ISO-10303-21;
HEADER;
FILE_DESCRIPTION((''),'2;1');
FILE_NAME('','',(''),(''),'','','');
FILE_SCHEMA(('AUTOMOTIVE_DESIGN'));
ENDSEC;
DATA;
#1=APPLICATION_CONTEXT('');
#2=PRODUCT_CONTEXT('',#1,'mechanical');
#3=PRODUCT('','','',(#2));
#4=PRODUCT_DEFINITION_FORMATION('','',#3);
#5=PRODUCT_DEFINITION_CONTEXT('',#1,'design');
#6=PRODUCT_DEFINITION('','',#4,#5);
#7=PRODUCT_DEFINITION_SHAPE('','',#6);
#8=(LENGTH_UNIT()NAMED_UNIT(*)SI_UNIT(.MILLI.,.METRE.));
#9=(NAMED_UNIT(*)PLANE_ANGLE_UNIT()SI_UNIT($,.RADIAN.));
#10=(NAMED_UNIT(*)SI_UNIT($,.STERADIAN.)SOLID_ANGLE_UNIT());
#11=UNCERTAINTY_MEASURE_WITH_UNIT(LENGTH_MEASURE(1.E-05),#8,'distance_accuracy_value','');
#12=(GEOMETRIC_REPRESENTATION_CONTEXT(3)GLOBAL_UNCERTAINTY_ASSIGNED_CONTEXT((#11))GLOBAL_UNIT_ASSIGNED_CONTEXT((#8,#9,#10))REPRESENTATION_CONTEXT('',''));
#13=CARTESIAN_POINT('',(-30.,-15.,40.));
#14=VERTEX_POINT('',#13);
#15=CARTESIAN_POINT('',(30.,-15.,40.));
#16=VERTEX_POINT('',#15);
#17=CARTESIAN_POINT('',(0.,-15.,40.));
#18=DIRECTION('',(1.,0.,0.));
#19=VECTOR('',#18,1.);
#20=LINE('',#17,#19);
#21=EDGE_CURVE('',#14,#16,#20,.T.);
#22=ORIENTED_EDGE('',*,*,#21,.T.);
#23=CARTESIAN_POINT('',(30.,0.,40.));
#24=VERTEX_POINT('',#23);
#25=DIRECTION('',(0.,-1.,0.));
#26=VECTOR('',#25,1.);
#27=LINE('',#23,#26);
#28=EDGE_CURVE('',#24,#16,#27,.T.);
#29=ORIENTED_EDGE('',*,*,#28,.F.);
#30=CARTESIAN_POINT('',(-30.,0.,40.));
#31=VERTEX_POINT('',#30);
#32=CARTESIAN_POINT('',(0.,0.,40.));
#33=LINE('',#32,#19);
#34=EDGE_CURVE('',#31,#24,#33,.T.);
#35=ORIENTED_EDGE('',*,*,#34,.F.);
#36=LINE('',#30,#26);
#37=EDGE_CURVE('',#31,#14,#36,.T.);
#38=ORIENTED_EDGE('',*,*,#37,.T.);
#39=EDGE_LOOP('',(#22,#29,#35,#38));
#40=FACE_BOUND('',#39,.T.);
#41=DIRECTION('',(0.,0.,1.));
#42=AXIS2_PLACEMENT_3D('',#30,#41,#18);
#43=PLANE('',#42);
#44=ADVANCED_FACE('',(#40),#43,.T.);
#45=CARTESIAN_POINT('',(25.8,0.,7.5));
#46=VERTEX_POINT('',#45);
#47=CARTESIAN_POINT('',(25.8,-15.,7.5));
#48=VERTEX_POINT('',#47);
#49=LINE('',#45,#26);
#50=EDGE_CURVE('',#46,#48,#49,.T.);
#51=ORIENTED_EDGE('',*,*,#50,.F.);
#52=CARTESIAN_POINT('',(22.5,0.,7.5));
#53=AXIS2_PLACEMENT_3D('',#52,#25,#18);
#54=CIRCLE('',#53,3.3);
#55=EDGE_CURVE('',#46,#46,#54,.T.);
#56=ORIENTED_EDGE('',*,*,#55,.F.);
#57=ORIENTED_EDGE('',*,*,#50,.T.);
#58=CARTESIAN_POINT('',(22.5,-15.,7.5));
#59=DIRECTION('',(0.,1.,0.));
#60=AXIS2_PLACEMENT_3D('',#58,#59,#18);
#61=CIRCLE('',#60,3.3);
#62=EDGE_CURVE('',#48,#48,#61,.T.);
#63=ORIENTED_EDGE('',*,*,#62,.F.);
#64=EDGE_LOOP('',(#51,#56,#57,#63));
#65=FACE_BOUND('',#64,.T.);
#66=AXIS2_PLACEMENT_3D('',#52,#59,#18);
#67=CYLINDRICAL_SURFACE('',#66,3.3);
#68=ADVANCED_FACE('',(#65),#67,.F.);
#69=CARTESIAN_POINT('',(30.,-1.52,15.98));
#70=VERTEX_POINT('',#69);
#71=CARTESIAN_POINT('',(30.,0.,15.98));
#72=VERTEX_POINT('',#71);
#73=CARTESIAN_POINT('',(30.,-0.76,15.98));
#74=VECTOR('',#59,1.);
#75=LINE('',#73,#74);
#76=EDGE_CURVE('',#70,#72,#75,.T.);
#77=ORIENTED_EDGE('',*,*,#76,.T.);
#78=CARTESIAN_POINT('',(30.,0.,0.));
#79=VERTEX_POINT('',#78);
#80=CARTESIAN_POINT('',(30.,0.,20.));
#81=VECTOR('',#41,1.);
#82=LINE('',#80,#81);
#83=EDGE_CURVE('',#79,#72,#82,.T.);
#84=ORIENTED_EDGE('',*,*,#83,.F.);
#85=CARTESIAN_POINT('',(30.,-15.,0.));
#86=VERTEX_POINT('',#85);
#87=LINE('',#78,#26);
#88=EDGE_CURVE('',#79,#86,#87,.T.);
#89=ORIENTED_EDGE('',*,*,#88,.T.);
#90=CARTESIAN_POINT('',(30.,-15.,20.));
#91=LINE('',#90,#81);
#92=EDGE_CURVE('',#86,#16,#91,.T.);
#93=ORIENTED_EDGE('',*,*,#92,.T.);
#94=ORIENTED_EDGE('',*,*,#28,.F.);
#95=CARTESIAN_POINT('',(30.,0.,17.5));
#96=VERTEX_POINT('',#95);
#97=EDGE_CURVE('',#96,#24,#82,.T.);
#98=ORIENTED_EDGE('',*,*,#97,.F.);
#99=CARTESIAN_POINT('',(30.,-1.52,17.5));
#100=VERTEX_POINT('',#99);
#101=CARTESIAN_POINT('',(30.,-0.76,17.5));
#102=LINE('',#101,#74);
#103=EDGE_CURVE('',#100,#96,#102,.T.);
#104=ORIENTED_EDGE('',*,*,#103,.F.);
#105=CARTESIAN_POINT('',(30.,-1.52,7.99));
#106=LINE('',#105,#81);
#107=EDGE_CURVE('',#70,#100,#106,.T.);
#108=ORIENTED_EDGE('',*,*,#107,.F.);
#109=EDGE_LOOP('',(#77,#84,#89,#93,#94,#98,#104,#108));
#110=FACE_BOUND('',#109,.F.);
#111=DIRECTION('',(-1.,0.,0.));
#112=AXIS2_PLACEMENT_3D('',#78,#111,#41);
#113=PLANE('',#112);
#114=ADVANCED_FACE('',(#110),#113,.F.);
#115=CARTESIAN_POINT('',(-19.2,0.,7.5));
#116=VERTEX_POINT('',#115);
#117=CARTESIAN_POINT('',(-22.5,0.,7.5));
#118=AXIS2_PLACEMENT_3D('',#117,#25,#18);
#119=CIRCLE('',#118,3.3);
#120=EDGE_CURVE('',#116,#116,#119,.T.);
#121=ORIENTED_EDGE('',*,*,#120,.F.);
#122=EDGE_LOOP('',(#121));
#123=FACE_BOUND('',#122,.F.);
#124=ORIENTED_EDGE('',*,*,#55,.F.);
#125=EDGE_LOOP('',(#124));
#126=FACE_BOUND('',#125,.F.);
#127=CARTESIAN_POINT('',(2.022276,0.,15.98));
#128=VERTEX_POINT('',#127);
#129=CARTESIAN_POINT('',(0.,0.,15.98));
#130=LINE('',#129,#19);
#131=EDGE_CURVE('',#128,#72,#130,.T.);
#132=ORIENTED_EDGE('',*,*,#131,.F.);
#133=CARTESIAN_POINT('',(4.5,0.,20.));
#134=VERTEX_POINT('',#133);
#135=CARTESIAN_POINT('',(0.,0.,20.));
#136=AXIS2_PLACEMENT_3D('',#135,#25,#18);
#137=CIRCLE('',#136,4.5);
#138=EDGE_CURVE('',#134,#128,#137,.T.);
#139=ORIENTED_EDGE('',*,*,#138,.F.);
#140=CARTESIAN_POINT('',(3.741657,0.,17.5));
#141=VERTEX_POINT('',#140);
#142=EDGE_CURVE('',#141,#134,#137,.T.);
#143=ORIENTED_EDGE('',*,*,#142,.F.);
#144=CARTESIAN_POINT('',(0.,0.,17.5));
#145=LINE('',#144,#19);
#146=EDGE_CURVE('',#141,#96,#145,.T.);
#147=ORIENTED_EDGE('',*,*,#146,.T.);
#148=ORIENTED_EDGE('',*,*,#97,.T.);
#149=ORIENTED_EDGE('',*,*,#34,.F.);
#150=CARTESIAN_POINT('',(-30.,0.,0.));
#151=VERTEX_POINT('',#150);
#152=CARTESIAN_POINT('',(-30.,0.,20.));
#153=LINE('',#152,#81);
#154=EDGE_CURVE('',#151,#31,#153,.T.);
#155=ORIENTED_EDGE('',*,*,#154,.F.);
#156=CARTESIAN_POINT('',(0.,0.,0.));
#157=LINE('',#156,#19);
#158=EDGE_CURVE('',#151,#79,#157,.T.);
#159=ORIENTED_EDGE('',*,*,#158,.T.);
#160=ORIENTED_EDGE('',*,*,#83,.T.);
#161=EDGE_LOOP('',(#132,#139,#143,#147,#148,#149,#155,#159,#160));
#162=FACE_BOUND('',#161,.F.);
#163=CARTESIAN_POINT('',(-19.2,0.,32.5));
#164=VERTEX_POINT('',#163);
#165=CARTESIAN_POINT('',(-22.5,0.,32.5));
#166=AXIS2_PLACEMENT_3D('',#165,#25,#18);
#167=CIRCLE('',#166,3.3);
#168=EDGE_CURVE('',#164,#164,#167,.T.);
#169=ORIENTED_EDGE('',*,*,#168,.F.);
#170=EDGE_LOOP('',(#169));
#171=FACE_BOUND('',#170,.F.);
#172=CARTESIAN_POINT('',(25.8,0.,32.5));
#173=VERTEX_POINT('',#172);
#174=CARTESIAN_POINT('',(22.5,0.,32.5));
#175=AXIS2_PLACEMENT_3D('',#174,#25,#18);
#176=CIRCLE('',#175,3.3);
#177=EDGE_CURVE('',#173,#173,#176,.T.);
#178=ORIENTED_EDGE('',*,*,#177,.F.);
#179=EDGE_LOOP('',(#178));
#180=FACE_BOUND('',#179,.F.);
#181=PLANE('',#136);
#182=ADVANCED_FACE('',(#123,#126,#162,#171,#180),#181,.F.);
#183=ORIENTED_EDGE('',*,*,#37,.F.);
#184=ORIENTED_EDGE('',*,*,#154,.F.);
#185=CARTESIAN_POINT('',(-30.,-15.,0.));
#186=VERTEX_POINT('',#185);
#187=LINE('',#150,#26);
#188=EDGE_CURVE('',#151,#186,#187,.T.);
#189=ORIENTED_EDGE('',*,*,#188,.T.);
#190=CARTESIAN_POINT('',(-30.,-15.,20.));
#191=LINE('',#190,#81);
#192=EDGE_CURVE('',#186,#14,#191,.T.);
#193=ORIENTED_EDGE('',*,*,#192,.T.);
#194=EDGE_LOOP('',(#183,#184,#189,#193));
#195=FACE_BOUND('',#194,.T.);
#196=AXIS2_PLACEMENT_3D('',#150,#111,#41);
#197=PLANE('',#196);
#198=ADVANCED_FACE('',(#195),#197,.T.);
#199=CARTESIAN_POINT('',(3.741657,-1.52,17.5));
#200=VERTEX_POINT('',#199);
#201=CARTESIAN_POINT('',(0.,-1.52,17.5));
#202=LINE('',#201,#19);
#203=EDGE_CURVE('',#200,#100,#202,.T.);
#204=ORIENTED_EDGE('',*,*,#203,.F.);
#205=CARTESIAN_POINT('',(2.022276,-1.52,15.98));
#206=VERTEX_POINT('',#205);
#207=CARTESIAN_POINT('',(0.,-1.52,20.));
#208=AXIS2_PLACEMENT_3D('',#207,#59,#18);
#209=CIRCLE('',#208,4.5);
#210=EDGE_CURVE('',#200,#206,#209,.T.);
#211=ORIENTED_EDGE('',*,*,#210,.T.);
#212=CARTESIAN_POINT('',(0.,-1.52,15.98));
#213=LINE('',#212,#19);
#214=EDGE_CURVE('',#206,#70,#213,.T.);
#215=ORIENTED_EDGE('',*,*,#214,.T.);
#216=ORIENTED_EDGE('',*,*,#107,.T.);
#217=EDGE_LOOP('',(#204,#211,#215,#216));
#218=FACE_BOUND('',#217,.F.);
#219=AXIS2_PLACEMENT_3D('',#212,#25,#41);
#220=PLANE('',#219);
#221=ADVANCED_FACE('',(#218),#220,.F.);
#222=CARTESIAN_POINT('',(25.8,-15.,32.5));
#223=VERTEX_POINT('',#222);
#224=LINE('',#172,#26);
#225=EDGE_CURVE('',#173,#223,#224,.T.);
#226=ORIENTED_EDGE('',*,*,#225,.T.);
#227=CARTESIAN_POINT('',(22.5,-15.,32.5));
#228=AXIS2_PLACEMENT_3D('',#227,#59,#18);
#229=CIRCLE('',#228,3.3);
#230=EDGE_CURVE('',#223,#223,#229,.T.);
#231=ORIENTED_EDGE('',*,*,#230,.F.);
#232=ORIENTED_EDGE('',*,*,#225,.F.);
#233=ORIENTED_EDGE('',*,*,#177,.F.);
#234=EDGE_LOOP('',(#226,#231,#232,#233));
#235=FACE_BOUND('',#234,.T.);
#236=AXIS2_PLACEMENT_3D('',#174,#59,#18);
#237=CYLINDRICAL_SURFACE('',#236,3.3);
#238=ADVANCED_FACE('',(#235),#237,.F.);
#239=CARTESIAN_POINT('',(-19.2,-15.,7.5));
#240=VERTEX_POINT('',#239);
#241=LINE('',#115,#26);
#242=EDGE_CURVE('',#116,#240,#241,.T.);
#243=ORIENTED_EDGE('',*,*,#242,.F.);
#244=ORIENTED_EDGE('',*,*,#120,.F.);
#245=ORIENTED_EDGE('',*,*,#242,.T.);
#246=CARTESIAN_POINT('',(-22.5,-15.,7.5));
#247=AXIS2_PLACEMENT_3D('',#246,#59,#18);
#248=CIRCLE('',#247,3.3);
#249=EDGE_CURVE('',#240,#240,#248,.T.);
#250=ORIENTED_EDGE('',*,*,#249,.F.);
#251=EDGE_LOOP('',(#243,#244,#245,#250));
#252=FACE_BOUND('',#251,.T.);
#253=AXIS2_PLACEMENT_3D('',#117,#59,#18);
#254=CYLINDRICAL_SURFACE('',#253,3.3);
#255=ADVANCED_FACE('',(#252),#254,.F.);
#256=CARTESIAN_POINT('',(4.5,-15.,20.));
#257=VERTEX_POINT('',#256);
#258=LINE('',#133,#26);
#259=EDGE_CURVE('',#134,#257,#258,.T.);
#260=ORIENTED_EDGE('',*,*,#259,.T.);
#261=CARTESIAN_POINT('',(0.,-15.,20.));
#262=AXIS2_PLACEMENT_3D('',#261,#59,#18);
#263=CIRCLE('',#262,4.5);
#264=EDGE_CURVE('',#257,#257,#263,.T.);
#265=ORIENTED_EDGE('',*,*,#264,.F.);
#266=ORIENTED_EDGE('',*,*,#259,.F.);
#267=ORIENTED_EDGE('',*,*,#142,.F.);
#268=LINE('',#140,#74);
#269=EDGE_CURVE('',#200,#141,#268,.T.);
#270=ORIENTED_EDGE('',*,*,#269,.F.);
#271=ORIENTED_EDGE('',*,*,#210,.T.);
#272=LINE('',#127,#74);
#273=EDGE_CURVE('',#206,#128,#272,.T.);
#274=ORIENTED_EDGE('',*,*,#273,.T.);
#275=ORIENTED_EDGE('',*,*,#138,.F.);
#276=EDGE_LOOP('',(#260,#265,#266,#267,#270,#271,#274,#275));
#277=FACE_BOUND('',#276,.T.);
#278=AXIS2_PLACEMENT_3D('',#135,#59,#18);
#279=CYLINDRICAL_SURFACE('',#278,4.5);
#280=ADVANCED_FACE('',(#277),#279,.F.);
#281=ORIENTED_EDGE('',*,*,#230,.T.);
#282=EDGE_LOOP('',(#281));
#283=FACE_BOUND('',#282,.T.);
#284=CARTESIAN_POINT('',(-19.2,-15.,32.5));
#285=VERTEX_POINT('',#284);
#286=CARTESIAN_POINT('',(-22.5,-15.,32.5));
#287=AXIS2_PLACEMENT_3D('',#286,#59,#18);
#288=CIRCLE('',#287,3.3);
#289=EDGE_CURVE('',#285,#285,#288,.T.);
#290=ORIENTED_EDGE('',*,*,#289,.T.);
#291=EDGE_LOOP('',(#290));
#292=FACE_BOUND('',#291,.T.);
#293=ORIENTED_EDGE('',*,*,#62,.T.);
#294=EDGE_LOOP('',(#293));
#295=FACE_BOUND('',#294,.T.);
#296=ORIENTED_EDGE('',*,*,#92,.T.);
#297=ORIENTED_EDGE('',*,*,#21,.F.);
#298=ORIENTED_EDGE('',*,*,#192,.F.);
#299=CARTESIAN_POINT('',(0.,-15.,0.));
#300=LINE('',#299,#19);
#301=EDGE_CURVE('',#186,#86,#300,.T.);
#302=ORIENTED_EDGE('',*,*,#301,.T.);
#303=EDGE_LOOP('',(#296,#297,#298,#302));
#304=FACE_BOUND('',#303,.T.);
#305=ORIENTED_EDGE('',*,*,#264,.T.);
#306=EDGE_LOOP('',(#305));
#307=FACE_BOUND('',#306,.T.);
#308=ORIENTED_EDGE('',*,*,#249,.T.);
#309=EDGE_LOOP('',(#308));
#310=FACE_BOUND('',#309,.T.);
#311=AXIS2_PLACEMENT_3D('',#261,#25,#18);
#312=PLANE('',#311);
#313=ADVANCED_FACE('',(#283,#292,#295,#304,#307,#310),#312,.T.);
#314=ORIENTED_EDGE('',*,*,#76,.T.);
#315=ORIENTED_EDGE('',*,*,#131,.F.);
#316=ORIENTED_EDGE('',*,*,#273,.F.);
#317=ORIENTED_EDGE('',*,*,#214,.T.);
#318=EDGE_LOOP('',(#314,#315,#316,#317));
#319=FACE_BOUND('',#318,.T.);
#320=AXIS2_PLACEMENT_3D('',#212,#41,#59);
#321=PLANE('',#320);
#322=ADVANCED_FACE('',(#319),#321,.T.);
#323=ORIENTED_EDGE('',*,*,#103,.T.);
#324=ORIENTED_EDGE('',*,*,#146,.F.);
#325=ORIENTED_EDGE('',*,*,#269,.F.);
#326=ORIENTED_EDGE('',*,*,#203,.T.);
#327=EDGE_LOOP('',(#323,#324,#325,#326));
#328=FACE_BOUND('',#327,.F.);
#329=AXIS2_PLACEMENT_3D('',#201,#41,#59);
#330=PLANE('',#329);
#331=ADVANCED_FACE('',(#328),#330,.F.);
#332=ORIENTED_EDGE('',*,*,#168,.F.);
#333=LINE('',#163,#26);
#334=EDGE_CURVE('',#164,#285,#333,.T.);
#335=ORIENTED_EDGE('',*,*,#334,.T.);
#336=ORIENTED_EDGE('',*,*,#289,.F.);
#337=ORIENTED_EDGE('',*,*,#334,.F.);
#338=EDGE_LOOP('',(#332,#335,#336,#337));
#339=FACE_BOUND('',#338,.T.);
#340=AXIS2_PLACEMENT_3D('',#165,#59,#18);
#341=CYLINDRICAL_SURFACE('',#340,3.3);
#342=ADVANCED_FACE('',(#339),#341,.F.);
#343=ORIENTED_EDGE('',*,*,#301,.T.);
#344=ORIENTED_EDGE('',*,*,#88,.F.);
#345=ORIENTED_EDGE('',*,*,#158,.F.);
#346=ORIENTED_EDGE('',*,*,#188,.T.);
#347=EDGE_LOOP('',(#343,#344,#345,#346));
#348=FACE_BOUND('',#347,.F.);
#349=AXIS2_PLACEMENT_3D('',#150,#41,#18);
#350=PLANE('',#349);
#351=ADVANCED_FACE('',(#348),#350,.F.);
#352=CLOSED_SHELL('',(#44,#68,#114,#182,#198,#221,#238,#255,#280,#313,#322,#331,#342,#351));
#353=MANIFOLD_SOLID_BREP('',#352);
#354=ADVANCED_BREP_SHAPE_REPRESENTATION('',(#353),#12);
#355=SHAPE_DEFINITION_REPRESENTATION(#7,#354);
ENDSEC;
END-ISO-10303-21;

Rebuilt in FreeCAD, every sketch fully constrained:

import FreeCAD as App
import Part
import Sketcher
Q = App.Units.Quantity


def add_polygon(sketch, points):
    """Adds a closed chain of lines whose ends are joined by coincident constraints."""
    first, n = sketch.GeometryCount, len(points)
    for a, b in zip(points, points[1:] + points[:1]):
        sketch.addGeometry(Part.LineSegment(App.Vector(*a, 0), App.Vector(*b, 0)), False)
    for i in range(n):
        sketch.addConstraint(Sketcher.Constraint("Coincident", first + i, 2, first + (i + 1) % n, 1))

doc = App.newDocument("Part")
params = doc.addObject("Spreadsheet::Sheet", "Params")
for row, (alias, value) in enumerate([
    ("sketch1_width", "60 mm"),
    ("sketch1_height", "40 mm"),
    ("pad1_length", "15 mm"),
    ("sketch2_diameter", "9 mm"),
    ("sketch3_width", "1.52 mm"),
    ("sketch4_diameter", "6.6 mm"),
], start=1):
    params.set(f"A{row}", alias)
    params.set(f"B{row}", "=" + value)
    params.setAlias(f"B{row}", alias)

body = doc.addObject("PartDesign::Body", "Body")

# Sketch on XZ plane
sketch1 = body.newObject("Sketcher::SketchObject", "Sketch")
sketch1.AttachmentSupport = (doc.getObject("XZ_Plane"), [""])
sketch1.MapMode = "FlatFace"
add_polygon(sketch1, [(-30, 40), (-30, 0), (30, 0), (30, 40)])  # lines 0-3
sketch1.addConstraint([
    Sketcher.Constraint("Vertical", 0),
    Sketcher.Constraint("Horizontal", 1),
    Sketcher.Constraint("Vertical", 2),
    Sketcher.Constraint("Horizontal", 3),
    Sketcher.Constraint("Symmetric", 0, 2, 1, 2, -1, 1),
    Sketcher.Constraint("DistanceX", 1, 1, 1, 2, Q("60 mm")),
    Sketcher.Constraint("DistanceY", 0, 2, 0, 1, Q("40 mm")),
])
sketch1.setExpression("Constraints[9]", "Params.sketch1_width")
sketch1.setExpression("Constraints[10]", "Params.sketch1_height")
pad1 = body.newObject("PartDesign::Pad", "Pad")
pad1.Profile = sketch1
pad1.setExpression("Length", "Params.pad1_length")

# Sketch on XZ plane
sketch2 = body.newObject("Sketcher::SketchObject", "Sketch001")
sketch2.AttachmentSupport = (doc.getObject("XZ_Plane"), [""])
sketch2.MapMode = "FlatFace"
sketch2.addGeometry(Part.Circle(App.Vector(0, 20, 0), App.Vector(0, 0, 1), 4.5), False)
sketch2.addConstraint([
    Sketcher.Constraint("PointOnObject", 0, 3, -2),
    Sketcher.Constraint("Diameter", 0, Q("9 mm")),
    Sketcher.Constraint("DistanceY", -1, 1, 0, 3, Q("20 mm")),
])
sketch2.setExpression("Constraints[1]", "Params.sketch2_diameter")
pocket1 = body.newObject("PartDesign::Pocket", "Pocket")
pocket1.Profile = sketch2
pocket1.Type = "ThroughAll"
pocket1.Reversed = True

# Sketch on YZ plane
sketch3 = body.newObject("Sketcher::SketchObject", "Sketch002")
sketch3.AttachmentSupport = (doc.getObject("YZ_Plane"), [""])
sketch3.MapMode = "FlatFace"
add_polygon(sketch3, [(-1.5, 17.5), (-1.5, 16), (0, 16), (0, 17.5)])  # lines 0-3
sketch3.addConstraint([
    Sketcher.Constraint("Vertical", 0),
    Sketcher.Constraint("Horizontal", 1),
    Sketcher.Constraint("Vertical", 2),
    Sketcher.Constraint("Horizontal", 3),
    Sketcher.Constraint("PointOnObject", 1, 2, -2),
    Sketcher.Constraint("Equal", 3, 0),
    Sketcher.Constraint("DistanceX", 1, 1, 1, 2, Q("1.52 mm")),
    Sketcher.Constraint("DistanceY", -1, 1, 2, 2, Q("17.5 mm")),
])
sketch3.setExpression("Constraints[10]", "Params.sketch3_width")
pocket2 = body.newObject("PartDesign::Pocket", "Pocket001")
pocket2.Profile = sketch3
pocket2.Type = "ThroughAll"
pocket2.Reversed = True

# Sketch on XZ plane
sketch4 = body.newObject("Sketcher::SketchObject", "Sketch003")
sketch4.AttachmentSupport = (doc.getObject("XZ_Plane"), [""])
sketch4.MapMode = "FlatFace"
sketch4.addGeometry([
    Part.Circle(App.Vector(-22.5, 32.5, 0), App.Vector(0, 0, 1), 3.3),
    Part.Circle(App.Vector(22.5, 32.5, 0), App.Vector(0, 0, 1), 3.3),
    Part.Circle(App.Vector(22.5, 7.5, 0), App.Vector(0, 0, 1), 3.3),
    Part.Circle(App.Vector(-22.5, 7.5, 0), App.Vector(0, 0, 1), 3.3),
], False)
sketch4.addConstraint([
    Sketcher.Constraint("Equal", 0, 1),
    Sketcher.Constraint("Equal", 1, 2),
    Sketcher.Constraint("Equal", 2, 3),
    Sketcher.Constraint("Symmetric", 0, 3, 1, 3, -2),
    Sketcher.Constraint("Symmetric", 2, 3, 3, 3, -2),
    Sketcher.Constraint("Vertical", 1, 3, 2, 3),
    Sketcher.Constraint("Diameter", 0, Q("6.6 mm")),
    Sketcher.Constraint("DistanceX", 0, 3, 1, 3, Q("45 mm")),
    Sketcher.Constraint("DistanceY", 2, 3, 1, 3, Q("25 mm")),
    Sketcher.Constraint("DistanceY", -1, 1, 0, 3, Q("32.5 mm")),
])
sketch4.setExpression("Constraints[6]", "Params.sketch4_diameter")
pocket3 = body.newObject("PartDesign::Pocket", "Pocket002")
pocket3.Profile = sketch4
pocket3.Type = "ThroughAll"
pocket3.Reversed = True

doc.recompute()
